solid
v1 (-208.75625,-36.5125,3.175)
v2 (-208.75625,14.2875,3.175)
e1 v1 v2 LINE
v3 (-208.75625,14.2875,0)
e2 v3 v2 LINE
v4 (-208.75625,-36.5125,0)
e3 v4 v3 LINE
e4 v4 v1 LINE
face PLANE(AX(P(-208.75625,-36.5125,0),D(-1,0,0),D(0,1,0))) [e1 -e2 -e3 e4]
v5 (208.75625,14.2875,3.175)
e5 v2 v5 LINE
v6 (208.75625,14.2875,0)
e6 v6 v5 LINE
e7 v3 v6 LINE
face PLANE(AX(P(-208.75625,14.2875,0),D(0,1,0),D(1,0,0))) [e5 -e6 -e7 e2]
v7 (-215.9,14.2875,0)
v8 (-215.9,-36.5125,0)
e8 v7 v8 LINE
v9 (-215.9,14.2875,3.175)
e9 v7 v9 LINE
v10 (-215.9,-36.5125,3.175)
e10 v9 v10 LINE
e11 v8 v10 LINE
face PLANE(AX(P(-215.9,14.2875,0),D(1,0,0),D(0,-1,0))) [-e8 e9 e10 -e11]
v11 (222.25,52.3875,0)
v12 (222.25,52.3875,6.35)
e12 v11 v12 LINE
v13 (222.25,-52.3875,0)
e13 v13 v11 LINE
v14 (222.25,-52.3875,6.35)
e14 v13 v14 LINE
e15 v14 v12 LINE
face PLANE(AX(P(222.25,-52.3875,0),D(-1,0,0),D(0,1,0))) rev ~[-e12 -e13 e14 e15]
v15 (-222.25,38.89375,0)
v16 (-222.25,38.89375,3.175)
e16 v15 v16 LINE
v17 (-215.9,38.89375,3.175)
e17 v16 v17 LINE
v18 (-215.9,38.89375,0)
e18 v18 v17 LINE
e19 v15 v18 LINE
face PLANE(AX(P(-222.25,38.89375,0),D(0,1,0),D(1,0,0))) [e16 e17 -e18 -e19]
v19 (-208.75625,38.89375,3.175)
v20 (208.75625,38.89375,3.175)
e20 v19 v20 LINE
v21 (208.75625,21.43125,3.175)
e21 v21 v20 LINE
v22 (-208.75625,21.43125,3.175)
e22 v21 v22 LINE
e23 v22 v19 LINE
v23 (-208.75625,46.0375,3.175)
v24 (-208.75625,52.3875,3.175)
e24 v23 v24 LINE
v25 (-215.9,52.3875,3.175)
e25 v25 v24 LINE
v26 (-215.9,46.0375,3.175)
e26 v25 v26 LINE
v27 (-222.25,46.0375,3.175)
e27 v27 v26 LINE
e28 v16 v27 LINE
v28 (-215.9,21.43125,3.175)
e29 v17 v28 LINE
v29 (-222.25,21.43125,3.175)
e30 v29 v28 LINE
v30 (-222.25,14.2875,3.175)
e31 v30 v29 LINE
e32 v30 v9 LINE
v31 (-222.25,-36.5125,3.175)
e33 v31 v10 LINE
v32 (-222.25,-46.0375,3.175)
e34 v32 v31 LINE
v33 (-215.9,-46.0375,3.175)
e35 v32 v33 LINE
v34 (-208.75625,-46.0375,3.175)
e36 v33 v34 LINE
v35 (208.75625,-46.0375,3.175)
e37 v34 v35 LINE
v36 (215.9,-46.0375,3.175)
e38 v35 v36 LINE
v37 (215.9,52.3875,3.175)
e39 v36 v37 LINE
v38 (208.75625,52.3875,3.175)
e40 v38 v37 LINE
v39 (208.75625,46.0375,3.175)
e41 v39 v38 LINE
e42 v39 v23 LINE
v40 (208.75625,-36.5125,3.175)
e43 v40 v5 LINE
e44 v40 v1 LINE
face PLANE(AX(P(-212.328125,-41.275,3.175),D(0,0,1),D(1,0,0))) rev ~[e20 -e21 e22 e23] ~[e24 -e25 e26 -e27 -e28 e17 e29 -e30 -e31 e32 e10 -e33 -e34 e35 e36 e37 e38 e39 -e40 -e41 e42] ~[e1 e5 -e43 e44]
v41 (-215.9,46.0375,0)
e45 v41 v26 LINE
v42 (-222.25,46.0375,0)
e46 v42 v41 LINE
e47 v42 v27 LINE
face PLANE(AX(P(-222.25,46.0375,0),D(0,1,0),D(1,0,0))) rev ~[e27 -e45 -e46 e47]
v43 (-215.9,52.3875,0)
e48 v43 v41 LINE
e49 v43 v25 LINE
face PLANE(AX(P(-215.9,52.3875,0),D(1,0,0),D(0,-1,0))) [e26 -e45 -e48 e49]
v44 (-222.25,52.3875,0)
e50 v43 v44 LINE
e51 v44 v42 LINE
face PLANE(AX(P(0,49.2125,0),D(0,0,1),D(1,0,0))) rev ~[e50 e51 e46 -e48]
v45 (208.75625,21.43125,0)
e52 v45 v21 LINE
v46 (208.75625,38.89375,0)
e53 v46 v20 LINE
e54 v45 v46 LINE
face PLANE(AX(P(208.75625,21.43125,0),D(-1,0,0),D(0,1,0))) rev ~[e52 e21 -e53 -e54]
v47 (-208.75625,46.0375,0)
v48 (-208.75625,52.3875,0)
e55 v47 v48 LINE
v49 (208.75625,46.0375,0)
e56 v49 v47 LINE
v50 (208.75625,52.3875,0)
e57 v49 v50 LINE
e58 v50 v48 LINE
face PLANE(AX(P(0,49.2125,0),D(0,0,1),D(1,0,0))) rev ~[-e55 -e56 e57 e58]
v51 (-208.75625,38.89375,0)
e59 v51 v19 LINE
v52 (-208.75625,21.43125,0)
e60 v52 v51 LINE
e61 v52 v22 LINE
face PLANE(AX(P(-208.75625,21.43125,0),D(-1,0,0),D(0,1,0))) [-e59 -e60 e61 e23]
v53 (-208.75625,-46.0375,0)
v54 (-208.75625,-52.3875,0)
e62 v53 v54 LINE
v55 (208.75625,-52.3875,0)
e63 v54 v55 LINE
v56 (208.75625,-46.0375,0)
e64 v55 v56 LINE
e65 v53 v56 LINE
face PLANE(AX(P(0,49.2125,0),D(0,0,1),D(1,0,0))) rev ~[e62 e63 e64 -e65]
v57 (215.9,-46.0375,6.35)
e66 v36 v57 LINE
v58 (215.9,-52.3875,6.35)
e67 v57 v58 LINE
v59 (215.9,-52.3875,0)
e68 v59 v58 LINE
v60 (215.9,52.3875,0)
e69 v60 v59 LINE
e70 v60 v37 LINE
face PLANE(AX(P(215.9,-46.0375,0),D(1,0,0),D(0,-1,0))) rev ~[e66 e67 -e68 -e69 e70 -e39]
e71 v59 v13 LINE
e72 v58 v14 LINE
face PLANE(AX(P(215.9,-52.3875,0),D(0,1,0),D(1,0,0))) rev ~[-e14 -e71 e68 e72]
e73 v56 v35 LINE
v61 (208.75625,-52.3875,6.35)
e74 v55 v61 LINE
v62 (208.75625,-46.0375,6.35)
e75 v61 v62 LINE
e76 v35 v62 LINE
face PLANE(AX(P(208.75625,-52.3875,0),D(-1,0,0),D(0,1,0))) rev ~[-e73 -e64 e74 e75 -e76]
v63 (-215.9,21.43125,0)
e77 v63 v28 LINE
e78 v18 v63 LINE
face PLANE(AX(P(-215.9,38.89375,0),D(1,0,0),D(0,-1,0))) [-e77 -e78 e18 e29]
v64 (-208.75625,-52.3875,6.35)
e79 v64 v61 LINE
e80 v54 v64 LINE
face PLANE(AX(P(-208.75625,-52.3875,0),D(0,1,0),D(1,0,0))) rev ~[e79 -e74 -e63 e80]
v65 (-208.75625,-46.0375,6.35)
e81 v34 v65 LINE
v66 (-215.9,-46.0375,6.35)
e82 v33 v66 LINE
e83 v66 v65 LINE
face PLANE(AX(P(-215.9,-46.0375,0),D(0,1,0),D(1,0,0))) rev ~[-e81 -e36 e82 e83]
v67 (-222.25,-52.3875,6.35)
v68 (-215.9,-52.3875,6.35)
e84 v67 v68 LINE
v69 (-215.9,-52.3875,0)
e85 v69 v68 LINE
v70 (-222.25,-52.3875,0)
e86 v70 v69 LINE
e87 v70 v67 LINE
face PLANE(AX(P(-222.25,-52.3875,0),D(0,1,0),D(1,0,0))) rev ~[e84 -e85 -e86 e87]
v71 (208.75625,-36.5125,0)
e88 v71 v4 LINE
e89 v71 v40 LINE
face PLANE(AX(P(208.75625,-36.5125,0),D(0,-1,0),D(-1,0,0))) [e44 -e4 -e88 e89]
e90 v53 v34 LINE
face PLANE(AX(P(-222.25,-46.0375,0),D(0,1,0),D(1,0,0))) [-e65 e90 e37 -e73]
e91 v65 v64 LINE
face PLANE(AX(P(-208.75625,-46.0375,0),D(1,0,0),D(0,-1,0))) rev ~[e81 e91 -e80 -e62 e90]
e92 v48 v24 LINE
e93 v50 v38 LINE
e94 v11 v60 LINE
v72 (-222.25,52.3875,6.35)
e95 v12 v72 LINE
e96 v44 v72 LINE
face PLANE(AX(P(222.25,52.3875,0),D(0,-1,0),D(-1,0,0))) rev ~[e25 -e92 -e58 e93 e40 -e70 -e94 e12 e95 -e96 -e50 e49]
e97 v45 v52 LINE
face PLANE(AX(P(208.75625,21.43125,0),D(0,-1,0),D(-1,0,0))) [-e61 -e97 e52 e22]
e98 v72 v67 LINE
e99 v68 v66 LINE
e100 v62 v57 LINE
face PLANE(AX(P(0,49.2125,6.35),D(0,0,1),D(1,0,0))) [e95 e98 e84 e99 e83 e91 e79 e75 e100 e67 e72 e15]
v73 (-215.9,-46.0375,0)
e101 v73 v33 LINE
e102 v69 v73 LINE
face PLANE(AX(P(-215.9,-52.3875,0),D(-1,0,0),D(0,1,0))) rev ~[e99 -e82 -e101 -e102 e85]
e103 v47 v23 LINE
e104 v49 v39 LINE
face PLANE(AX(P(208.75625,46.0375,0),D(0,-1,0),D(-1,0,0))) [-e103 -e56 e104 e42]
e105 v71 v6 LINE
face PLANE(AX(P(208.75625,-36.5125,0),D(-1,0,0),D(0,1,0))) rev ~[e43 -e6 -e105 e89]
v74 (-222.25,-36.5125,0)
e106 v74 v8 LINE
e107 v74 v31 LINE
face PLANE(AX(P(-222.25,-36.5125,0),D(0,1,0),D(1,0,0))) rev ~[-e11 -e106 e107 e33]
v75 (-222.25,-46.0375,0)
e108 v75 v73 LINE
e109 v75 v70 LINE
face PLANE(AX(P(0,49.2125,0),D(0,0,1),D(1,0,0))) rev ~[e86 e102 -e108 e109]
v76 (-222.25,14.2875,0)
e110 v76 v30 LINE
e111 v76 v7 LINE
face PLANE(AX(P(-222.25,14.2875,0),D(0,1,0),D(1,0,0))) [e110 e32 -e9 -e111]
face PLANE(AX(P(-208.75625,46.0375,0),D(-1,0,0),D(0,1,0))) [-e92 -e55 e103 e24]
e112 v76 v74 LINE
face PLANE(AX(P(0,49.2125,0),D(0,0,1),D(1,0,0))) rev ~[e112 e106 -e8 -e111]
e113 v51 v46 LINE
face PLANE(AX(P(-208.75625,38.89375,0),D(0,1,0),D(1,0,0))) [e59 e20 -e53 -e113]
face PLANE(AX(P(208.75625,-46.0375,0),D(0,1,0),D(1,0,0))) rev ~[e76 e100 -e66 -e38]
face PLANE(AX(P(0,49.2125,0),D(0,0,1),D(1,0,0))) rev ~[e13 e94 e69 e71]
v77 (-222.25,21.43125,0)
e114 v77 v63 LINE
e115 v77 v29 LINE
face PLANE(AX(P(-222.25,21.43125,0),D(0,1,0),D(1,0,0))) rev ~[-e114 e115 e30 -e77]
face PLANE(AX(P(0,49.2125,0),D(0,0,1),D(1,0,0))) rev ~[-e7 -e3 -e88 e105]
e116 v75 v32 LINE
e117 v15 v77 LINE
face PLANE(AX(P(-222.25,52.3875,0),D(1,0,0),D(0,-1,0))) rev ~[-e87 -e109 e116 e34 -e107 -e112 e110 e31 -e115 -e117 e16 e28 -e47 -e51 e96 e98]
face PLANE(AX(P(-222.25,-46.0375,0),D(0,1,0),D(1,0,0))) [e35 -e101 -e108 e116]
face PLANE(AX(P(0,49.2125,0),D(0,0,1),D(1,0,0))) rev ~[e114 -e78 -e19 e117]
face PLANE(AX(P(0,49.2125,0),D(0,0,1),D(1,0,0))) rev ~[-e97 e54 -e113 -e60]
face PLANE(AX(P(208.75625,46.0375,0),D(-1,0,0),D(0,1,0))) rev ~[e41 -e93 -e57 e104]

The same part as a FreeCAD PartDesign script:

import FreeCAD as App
import Part
import Sketcher

V = App.Vector
Q = App.Units.Quantity


def add_polygon(sketch, points):
    """Adds a closed chain of lines whose ends are joined by coincident constraints."""
    first, n = sketch.GeometryCount, len(points)
    for a, b in zip(points, points[1:] + points[:1]):
        sketch.addGeometry(Part.LineSegment(App.Vector(*a, 0), App.Vector(*b, 0)), False)
    for i in range(n):
        sketch.addConstraint(Sketcher.Constraint("Coincident", first + i, 2, first + (i + 1) % n, 1))

doc = App.newDocument("Part")
params = doc.addObject("Spreadsheet::Sheet", "Params")
for row, (alias, value) in enumerate([
    ("sketch1_width", "17.5 in"),
    ("sketch1_width2", "0.25 in"),
    ("sketch1_width3", "16.4375 in"),
    ("sketch1_height", "4.125 in"),
    ("pad1_length", "0.25 in"),
    ("sketch2_height", "2 in"),
    ("sketch2_width", "0.25 in"),
    ("sketch2_width2", "0.28125 in"),
    ("sketch2_height2", "0.375 in"),
    ("pocket1_length", "0.125 in"),
], start=1):
    params.set(f"A{row}", alias)
    params.set(f"B{row}", "=" + value)
    params.setAlias(f"B{row}", alias)

body = doc.addObject("PartDesign::Body", "Body")

# Sketch on XY plane
sketch1 = body.newObject("Sketcher::SketchObject", "Sketch")
sketch1.AttachmentSupport = (doc.getObject("XY_Plane"), [""])
sketch1.MapMode = "FlatFace"
add_polygon(sketch1, [(-209, -46), (-209, -52), (209, -52), (209, -46), (216, -46), (216, -52), (222, -52), (222, 52), (-222, 52), (-222, -52), (-216, -52), (-216, -46)])  # lines 0-11
sketch1.addConstraint(Sketcher.Constraint("Vertical", 0))
sketch1.addConstraint(Sketcher.Constraint("Horizontal", 1))
sketch1.addConstraint(Sketcher.Constraint("Vertical", 2))
sketch1.addConstraint(Sketcher.Constraint("Horizontal", 3))
sketch1.addConstraint(Sketcher.Constraint("Vertical", 4))
sketch1.addConstraint(Sketcher.Constraint("Horizontal", 5))
sketch1.addConstraint(Sketcher.Constraint("Vertical", 6))
sketch1.addConstraint(Sketcher.Constraint("Horizontal", 7))
sketch1.addConstraint(Sketcher.Constraint("Vertical", 8))
sketch1.addConstraint(Sketcher.Constraint("Horizontal", 9))
sketch1.addConstraint(Sketcher.Constraint("Vertical", 10))
sketch1.addConstraint(Sketcher.Constraint("Horizontal", 11))
sketch1.addConstraint(Sketcher.Constraint("Symmetric", 5, 2, 7, 2, -1, 1))
sketch1.addConstraint(Sketcher.Constraint("Symmetric", 4, 2, 9, 2, -2))
sketch1.addConstraint(Sketcher.Constraint("Symmetric", 2, 2, 11, 2, -2))
sketch1.addConstraint(Sketcher.Constraint("Horizontal", 1, 2, 4, 2))
sketch1.addConstraint(Sketcher.Constraint("Equal", 9, 0))
sketch1.addConstraint(Sketcher.Constraint("DistanceX", 7, 2, 7, 1, Q("17.5 in")))
sketch1.addConstraint(Sketcher.Constraint("DistanceX", 5, 1, 5, 2, Q("0.25 in")))
sketch1.addConstraint(Sketcher.Constraint("DistanceX", 1, 1, 1, 2, Q("16.4375 in")))
sketch1.addConstraint(Sketcher.Constraint("DistanceY", 6, 1, 6, 2, Q("4.125 in")))
sketch1.setExpression("Constraints[29]", "Params.sketch1_width")
sketch1.setExpression("Constraints[30]", "Params.sketch1_width2")
sketch1.setExpression("Constraints[31]", "Params.sketch1_width3")
sketch1.setExpression("Constraints[32]", "Params.sketch1_height")
pad1 = body.newObject("PartDesign::Pad", "Pad")
pad1.Profile = sketch1
pad1.setExpression("Length", "Params.pad1_length")

# Sketch on XY plane
sketch2 = body.newObject("Sketcher::SketchObject", "Sketch001")
sketch2.AttachmentSupport = (doc.getObject("XY_Plane"), [""])
sketch2.MapMode = "FlatFace"
add_polygon(sketch2, [(216, 52), (209, 52), (209, 46), (-209, 46), (-209, 52), (-216, 52), (-216, 46), (-222, 46), (-222, 39), (-216, 39), (-216, 21), (-222, 21), (-222, 14), (-216, 14), (-216, -37), (-222, -37), (-222, -46), (216, -46)])  # lines 0-17
add_polygon(sketch2, [(-209, -37), (-209, 14), (209, 14), (209, -37)])  # lines 18-21
add_polygon(sketch2, [(209, 21), (-209, 21), (-209, 39), (209, 39)])  # lines 22-25
sketch2.addConstraint(Sketcher.Constraint("Horizontal", 0))
sketch2.addConstraint(Sketcher.Constraint("Vertical", 1))
sketch2.addConstraint(Sketcher.Constraint("Horizontal", 2))
sketch2.addConstraint(Sketcher.Constraint("Vertical", 3))
sketch2.addConstraint(Sketcher.Constraint("Horizontal", 4))
sketch2.addConstraint(Sketcher.Constraint("Vertical", 5))
sketch2.addConstraint(Sketcher.Constraint("Horizontal", 6))
sketch2.addConstraint(Sketcher.Constraint("Vertical", 7))
sketch2.addConstraint(Sketcher.Constraint("Horizontal", 8))
sketch2.addConstraint(Sketcher.Constraint("Vertical", 9))
sketch2.addConstraint(Sketcher.Constraint("Horizontal", 10))
sketch2.addConstraint(Sketcher.Constraint("Vertical", 11))
sketch2.addConstraint(Sketcher.Constraint("Horizontal", 12))
sketch2.addConstraint(Sketcher.Constraint("Vertical", 13))
sketch2.addConstraint(Sketcher.Constraint("Horizontal", 14))
sketch2.addConstraint(Sketcher.Constraint("Vertical", 15))
sketch2.addConstraint(Sketcher.Constraint("Horizontal", 16))
sketch2.addConstraint(Sketcher.Constraint("Vertical", 17))
sketch2.addConstraint(Sketcher.Constraint("Vertical", 18))
sketch2.addConstraint(Sketcher.Constraint("Horizontal", 19))
sketch2.addConstraint(Sketcher.Constraint("Vertical", 20))
sketch2.addConstraint(Sketcher.Constraint("Horizontal", 21))
sketch2.addConstraint(Sketcher.Constraint("Horizontal", 22))
sketch2.addConstraint(Sketcher.Constraint("Vertical", 23))
sketch2.addConstraint(Sketcher.Constraint("Horizontal", 24))
sketch2.addConstraint(Sketcher.Constraint("Vertical", 25))
sketch2.addConstraint(Sketcher.Constraint("Symmetric", 5, 2, 16, 2, -1, 1))
sketch2.addConstraint(Sketcher.Constraint("Symmetric", 0, 2, 3, 2, -2))
sketch2.addConstraint(Sketcher.Constraint("Horizontal", 2, 2, 5, 2))
sketch2.addConstraint(Sketcher.Constraint("Horizontal", 12, 2, 18, 2))
sketch2.addConstraint(Sketcher.Constraint("Horizontal", 14, 2, 20, 2))
sketch2.addConstraint(Sketcher.Constraint("Horizontal", 10, 2, 22, 2))
sketch2.addConstraint(Sketcher.Constraint("Horizontal", 8, 2, 23, 2))
sketch2.addConstraint(Sketcher.Constraint("Vertical", 5, 2, 8, 2))
sketch2.addConstraint(Sketcher.Constraint("Vertical", 7, 2, 10, 2))
sketch2.addConstraint(Sketcher.Constraint("Vertical", 9, 2, 12, 2))
sketch2.addConstraint(Sketcher.Constraint("Vertical", 11, 2, 14, 2))
sketch2.addConstraint(Sketcher.Constraint("Vertical", 3, 2, 18, 2))
sketch2.addConstraint(Sketcher.Constraint("Vertical", 1, 2, 19, 2))
sketch2.addConstraint(Sketcher.Constraint("Vertical", 21, 2, 22, 2))
sketch2.addConstraint(Sketcher.Constraint("Vertical", 20, 2, 24, 2))
sketch2.addConstraint(Sketcher.Constraint("Equal", 14, 1))
sketch2.addConstraint(Sketcher.Constraint("Equal", 4, 7))
sketch2.addConstraint(Sketcher.Constraint("Equal", 7, 11))
sketch2.addConstraint(Sketcher.Constraint("DistanceY", 13, 2, 13, 1, Q("2 in")))
sketch2.addConstraint(Sketcher.Constraint("DistanceX", 13, 2, 16, 2, Q("17 in")))
sketch2.addConstraint(Sketcher.Constraint("DistanceX", 6, 2, 6, 1, Q("0.25 in")))
sketch2.addConstraint(Sketcher.Constraint("DistanceY", 19, 2, 0, 2, Q("1.5 in")))
sketch2.addConstraint(Sketcher.Constraint("DistanceX", 0, 2, 0, 1, Q("0.28125 in")))
sketch2.addConstraint(Sketcher.Constraint("DistanceY", 15, 2, 15, 1, Q("0.375 in")))
sketch2.setExpression("Constraints[70]", "Params.sketch2_height")
sketch2.setExpression("Constraints[72]", "Params.sketch2_width")
sketch2.setExpression("Constraints[74]", "Params.sketch2_width2")
sketch2.setExpression("Constraints[75]", "Params.sketch2_height2")
pocket1 = body.newObject("PartDesign::Pocket", "Pocket")
pocket1.Profile = sketch2
pocket1.setExpression("Length", "Params.pocket1_length")
pocket1.Reversed = True

doc.recompute()
